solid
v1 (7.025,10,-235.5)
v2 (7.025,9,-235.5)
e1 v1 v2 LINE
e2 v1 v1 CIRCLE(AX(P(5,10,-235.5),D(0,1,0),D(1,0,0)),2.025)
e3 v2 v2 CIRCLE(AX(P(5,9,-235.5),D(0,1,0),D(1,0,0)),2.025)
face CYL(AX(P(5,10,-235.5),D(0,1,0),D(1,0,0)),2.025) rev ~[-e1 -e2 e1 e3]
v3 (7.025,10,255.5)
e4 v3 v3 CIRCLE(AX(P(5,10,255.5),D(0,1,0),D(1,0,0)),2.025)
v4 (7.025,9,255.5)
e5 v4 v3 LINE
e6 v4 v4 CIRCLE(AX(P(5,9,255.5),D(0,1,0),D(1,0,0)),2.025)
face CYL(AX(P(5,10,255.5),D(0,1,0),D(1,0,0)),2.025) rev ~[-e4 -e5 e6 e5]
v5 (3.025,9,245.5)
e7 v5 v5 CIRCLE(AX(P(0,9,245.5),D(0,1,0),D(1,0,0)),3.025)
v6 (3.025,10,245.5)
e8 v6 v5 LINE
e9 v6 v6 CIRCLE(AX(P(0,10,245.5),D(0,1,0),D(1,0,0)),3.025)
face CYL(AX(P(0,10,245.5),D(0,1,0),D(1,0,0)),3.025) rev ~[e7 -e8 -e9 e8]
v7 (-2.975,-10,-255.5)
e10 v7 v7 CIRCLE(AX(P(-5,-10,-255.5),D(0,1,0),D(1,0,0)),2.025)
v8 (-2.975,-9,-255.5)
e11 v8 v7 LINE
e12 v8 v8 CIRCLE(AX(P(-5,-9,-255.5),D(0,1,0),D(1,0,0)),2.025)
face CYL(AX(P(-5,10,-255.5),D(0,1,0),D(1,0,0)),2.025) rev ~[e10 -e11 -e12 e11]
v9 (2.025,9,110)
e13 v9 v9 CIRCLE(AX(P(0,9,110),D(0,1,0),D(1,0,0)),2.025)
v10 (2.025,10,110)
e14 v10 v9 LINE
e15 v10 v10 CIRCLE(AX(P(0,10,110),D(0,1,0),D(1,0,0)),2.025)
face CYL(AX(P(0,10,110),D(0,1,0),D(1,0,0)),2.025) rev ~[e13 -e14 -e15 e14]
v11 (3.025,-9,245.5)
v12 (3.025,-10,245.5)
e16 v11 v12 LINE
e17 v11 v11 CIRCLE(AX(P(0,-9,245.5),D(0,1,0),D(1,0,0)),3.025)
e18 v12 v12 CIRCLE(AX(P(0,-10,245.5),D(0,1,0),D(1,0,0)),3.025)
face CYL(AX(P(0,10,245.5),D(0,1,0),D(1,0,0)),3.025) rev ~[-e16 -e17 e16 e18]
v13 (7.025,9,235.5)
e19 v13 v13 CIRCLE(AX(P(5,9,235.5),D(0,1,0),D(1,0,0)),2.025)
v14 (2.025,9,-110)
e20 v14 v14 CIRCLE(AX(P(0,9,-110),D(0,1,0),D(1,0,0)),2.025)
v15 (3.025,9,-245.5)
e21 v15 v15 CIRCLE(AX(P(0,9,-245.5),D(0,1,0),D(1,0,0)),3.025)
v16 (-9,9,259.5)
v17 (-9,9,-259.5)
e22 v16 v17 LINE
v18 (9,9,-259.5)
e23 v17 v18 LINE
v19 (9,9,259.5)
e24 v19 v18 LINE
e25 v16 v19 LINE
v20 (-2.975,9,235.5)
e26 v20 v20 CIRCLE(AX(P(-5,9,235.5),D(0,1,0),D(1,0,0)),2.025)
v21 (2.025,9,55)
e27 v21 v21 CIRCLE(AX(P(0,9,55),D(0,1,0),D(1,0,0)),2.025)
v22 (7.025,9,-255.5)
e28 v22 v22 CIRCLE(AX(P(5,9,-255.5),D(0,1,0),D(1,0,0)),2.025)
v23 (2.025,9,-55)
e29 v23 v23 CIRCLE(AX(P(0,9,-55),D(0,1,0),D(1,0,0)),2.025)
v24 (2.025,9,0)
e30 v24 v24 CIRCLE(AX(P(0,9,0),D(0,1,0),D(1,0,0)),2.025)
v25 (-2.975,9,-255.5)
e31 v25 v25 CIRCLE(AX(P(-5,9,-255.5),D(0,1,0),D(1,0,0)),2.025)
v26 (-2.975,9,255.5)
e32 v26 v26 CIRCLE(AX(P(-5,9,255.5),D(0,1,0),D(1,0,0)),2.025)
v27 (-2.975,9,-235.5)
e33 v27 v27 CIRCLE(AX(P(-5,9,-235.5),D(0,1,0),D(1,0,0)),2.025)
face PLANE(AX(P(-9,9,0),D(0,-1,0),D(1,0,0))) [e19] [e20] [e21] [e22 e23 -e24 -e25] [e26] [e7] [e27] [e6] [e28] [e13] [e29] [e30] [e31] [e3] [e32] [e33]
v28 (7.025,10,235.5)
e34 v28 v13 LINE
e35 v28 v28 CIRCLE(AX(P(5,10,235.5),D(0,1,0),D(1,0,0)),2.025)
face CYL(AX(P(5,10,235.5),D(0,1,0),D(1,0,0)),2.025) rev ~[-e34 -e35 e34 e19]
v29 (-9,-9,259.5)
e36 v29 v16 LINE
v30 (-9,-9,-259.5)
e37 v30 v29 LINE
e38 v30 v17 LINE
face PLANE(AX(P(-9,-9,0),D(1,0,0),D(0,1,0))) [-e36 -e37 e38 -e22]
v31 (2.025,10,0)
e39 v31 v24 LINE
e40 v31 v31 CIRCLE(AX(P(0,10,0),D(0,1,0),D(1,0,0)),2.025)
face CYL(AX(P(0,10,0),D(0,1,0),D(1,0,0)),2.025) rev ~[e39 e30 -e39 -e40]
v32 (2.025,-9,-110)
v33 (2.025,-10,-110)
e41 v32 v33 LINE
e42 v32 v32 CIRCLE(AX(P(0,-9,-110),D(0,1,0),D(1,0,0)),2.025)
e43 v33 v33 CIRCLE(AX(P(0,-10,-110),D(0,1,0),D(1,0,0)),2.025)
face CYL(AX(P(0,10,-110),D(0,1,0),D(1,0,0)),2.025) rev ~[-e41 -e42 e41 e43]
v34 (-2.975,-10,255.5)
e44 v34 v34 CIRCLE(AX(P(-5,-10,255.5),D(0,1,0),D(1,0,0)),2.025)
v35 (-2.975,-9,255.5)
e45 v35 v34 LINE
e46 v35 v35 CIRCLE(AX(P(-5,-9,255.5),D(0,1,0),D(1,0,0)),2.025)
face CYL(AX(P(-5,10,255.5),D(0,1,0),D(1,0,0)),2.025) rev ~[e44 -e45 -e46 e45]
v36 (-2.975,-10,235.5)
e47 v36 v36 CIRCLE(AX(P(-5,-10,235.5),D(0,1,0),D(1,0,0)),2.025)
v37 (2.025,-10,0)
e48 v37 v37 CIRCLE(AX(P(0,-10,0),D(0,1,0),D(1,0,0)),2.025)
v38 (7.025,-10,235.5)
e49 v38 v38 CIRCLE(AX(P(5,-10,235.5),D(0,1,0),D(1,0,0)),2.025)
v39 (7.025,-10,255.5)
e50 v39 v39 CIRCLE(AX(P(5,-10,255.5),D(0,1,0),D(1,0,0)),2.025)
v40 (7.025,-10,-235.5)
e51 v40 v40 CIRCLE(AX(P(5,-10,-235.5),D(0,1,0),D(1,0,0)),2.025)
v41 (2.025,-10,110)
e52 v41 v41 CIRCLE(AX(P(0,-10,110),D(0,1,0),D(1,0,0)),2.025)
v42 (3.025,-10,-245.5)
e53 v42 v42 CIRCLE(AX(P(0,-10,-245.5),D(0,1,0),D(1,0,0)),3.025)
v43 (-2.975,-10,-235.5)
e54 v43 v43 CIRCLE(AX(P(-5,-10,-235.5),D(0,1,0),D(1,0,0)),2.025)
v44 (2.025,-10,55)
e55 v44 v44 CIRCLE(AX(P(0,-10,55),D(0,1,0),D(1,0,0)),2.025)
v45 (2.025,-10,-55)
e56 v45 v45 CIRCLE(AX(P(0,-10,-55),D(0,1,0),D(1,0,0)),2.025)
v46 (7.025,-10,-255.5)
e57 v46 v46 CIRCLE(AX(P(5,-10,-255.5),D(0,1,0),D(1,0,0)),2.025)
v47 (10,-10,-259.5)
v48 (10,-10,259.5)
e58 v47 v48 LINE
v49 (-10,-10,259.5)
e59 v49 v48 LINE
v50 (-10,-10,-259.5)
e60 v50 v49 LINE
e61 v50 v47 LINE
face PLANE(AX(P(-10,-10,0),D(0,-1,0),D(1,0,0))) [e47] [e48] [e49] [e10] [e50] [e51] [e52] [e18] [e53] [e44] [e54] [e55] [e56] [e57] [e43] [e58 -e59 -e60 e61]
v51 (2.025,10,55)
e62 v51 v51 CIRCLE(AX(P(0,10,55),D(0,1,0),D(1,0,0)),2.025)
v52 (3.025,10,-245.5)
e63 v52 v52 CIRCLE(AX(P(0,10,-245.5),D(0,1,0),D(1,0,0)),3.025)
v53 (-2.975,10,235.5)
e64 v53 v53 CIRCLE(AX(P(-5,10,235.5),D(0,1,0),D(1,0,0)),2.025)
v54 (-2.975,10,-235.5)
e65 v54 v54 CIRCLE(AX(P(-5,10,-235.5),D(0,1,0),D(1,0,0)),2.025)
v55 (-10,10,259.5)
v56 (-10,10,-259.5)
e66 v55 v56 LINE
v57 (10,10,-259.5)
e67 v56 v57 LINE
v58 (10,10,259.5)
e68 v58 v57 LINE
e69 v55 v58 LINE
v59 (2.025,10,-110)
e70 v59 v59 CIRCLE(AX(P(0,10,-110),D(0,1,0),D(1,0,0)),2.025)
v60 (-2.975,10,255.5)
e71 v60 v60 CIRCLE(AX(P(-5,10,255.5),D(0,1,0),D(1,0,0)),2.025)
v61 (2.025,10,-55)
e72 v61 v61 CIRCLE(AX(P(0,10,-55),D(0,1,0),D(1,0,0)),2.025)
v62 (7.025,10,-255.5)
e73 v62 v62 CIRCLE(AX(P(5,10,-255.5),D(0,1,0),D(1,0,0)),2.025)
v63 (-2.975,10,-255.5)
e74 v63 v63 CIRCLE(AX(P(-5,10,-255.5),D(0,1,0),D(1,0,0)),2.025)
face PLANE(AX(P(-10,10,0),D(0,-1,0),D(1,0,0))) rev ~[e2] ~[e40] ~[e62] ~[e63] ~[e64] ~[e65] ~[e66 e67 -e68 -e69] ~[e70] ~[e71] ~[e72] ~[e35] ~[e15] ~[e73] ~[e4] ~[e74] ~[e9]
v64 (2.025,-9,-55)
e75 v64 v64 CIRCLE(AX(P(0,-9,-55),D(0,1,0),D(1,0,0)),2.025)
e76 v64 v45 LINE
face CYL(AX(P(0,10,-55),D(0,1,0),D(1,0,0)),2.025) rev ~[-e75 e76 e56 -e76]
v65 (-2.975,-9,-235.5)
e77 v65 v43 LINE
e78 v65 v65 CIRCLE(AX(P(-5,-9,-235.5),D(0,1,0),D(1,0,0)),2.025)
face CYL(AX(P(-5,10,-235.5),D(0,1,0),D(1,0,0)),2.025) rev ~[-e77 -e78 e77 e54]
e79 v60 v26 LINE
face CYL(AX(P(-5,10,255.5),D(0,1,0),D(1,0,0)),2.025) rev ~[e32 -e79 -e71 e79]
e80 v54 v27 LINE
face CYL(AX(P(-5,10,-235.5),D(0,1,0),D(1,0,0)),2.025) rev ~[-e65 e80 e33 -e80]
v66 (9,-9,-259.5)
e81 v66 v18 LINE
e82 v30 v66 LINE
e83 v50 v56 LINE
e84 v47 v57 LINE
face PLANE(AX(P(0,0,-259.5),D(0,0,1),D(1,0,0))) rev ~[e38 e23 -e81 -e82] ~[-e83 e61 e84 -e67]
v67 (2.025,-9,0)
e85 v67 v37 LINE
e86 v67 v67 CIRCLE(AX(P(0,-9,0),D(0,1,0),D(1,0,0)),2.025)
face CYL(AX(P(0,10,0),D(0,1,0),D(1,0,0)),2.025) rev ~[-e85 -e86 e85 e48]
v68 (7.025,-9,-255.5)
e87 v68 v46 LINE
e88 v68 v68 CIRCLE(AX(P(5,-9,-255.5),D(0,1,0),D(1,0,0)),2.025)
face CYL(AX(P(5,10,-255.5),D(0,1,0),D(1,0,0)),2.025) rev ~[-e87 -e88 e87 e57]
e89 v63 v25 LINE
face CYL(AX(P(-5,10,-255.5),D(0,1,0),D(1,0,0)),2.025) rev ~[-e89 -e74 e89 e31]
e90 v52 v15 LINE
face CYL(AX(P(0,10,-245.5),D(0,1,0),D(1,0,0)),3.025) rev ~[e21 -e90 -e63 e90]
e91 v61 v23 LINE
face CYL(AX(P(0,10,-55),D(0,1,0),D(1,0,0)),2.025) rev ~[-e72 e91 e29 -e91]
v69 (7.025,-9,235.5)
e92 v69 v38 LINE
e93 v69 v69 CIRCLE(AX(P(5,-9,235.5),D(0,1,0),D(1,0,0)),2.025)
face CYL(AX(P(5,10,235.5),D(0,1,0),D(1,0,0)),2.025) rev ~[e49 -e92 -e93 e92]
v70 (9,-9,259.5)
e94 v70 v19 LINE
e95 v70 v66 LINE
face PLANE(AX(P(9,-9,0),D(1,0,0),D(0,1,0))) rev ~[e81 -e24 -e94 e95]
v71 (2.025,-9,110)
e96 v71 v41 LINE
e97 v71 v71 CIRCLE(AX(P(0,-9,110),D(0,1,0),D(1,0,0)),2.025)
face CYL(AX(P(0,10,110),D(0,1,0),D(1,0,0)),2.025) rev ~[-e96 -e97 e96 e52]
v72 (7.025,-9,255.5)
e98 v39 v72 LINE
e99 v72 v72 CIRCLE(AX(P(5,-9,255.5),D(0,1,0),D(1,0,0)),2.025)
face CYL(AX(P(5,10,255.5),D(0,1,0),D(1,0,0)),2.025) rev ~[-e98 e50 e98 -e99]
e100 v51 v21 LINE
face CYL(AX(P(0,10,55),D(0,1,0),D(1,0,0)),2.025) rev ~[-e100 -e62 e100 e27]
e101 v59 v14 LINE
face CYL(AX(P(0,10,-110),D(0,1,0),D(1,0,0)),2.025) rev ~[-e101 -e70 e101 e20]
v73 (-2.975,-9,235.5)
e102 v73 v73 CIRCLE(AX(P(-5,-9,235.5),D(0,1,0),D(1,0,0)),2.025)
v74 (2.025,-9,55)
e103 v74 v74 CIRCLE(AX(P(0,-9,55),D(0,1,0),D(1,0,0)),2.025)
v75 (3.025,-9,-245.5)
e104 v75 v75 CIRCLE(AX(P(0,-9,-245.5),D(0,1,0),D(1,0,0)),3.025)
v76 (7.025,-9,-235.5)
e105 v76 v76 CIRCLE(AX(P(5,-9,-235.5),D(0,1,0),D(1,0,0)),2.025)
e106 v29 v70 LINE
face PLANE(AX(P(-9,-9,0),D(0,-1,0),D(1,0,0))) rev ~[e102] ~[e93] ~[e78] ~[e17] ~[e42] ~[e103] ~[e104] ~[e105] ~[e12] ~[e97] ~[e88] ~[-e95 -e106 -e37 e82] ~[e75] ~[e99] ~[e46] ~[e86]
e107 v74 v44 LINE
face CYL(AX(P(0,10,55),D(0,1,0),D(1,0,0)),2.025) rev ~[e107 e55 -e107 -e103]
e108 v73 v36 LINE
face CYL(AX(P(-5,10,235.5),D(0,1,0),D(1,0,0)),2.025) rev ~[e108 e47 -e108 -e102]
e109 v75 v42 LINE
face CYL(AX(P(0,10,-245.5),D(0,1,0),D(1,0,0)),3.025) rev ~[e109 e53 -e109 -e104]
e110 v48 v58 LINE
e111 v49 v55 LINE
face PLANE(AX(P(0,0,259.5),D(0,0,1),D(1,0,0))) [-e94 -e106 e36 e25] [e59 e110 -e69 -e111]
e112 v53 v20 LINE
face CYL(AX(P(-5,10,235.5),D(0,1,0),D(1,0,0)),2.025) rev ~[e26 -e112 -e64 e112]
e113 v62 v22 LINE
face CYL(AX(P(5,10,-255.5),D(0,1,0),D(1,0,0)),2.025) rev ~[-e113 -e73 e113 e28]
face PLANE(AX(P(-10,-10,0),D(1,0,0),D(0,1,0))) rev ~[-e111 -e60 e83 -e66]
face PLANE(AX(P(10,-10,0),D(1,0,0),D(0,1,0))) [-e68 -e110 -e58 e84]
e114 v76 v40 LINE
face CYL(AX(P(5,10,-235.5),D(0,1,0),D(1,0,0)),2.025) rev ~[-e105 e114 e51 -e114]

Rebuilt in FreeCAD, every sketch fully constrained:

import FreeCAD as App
import Part
import Sketcher

V = App.Vector
Q = App.Units.Quantity

doc = App.newDocument("Part")
body = doc.addObject("PartDesign::Body", "Body")

sketch1 = body.newObject("Sketcher::SketchObject", "Sketch")
sketch1.AttachmentSupport = (doc.getObject("XY_Plane"), [""])
sketch1.MapMode = "FlatFace"
sketch1.addGeometry([
    Part.LineSegment(V(-10, 10, 0), V(-10, -10, 0)),
    Part.LineSegment(V(-10, -10, 0), V(10, -10, 0)),
    Part.LineSegment(V(10, -10, 0), V(10, 10, 0)),
    Part.LineSegment(V(10, 10, 0), V(-10, 10, 0)),
    Part.LineSegment(V(9, -9, 0), V(-9, -9, 0)),
    Part.LineSegment(V(-9, -9, 0), V(-9, 9, 0)),
    Part.LineSegment(V(-9, 9, 0), V(9, 9, 0)),
    Part.LineSegment(V(9, 9, 0), V(9, -9, 0)),
], False)
sketch1.addConstraint([
    Sketcher.Constraint("Coincident", 0, 2, 1, 1),
    Sketcher.Constraint("Coincident", 1, 2, 2, 1),
    Sketcher.Constraint("Coincident", 2, 2, 3, 1),
    Sketcher.Constraint("Coincident", 3, 2, 0, 1),
    Sketcher.Constraint("Coincident", 4, 2, 5, 1),
    Sketcher.Constraint("Coincident", 5, 2, 6, 1),
    Sketcher.Constraint("Coincident", 6, 2, 7, 1),
    Sketcher.Constraint("Coincident", 7, 2, 4, 1),
    Sketcher.Constraint("Vertical", 0),
    Sketcher.Constraint("Horizontal", 1),
    Sketcher.Constraint("Vertical", 2),
    Sketcher.Constraint("Horizontal", 3),
    Sketcher.Constraint("Horizontal", 4),
    Sketcher.Constraint("Vertical", 5),
    Sketcher.Constraint("Horizontal", 6),
    Sketcher.Constraint("Vertical", 7),
    Sketcher.Constraint("Symmetric", 0, 2, 2, 2, -1, 1),
    Sketcher.Constraint("Symmetric", 4, 2, 6, 2, -1, 1),
    Sketcher.Constraint("Equal", 3, 0),
    Sketcher.Constraint("Equal", 6, 5),
    Sketcher.Constraint("DistanceX", 1, 1, 1, 2, Q("20 mm")),
    Sketcher.Constraint("DistanceX", 4, 2, 4, 1, Q("18 mm")),
])
pad1 = body.newObject("PartDesign::Pad", "Pad")
pad1.Profile = sketch1
pad1.Length = 519
pad1.Midplane = True

sketch2 = body.newObject("Sketcher::SketchObject", "Sketch001")
sketch2.AttachmentSupport = (doc.getObject("XZ_Plane"), [""])
sketch2.MapMode = "FlatFace"
sketch2.AttachmentOffset = App.Placement(V(0, 0, -10), App.Rotation())
sketch2.addGeometry([
    Part.Circle(V(-5, -255.5, 0), V(0, 0, 1), 2.025),
    Part.Circle(V(5, -255.5, 0), V(0, 0, 1), 2.025),
    Part.Circle(V(-5, -235.5, 0), V(0, 0, 1), 2.025),
    Part.Circle(V(5, -235.5, 0), V(0, 0, 1), 2.025),
    Part.Circle(V(0, -245.5, 0), V(0, 0, 1), 3.025),
    Part.Circle(V(5, 235.5, 0), V(0, 0, 1), 2.025),
    Part.Circle(V(-5, 235.5, 0), V(0, 0, 1), 2.025),
    Part.Circle(V(-5, 255.5, 0), V(0, 0, 1), 2.025),
    Part.Circle(V(0, 245.5, 0), V(0, 0, 1), 3.025),
    Part.Circle(V(5, 255.5, 0), V(0, 0, 1), 2.025),
], False)
sketch2.addConstraint([
    Sketcher.Constraint("Equal", 0, 1),
    Sketcher.Constraint("Equal", 1, 2),
    Sketcher.Constraint("Equal", 2, 3),
    Sketcher.Constraint("Equal", 3, 5),
    Sketcher.Constraint("Equal", 5, 6),
    Sketcher.Constraint("Equal", 6, 7),
    Sketcher.Constraint("Equal", 4, 8),
    Sketcher.Constraint("Equal", 7, 9),
    Sketcher.Constraint("Symmetric", 2, 3, 5, 3, -1, 1),
    Sketcher.Constraint("Symmetric", 3, 3, 6, 3, -1, 1),
    Sketcher.Constraint("Symmetric", 1, 3, 7, 3, -1, 1),
    Sketcher.Constraint("Symmetric", 4, 3, 8, 3, -1, 1),
    Sketcher.Constraint("Symmetric", 0, 3, 9, 3, -1, 1),
    Sketcher.Constraint("Symmetric", 0, 3, 1, 3, -2),
    Sketcher.Constraint("Symmetric", 2, 3, 3, 3, -2),
    Sketcher.Constraint("PointOnObject", 4, 3, -2),
    Sketcher.Constraint("Vertical", 0, 3, 2, 3),
    Sketcher.Constraint("Diameter", 0, Q("4.05 mm")),
    Sketcher.Constraint("Diameter", 4, Q("6.05 mm")),
    Sketcher.Constraint("DistanceX", 0, 3, -1, 1, Q("5 mm")),
    Sketcher.Constraint("DistanceY", 0, 3, 2, 3, Q("20 mm")),
    Sketcher.Constraint("DistanceY", 0, 3, 4, 3, Q("10 mm")),
    Sketcher.Constraint("DistanceY", 3, 3, 5, 3, Q("471 mm")),
])
pocket1 = body.newObject("PartDesign::Pocket", "Pocket")
pocket1.Profile = sketch2
pocket1.Length = 40
pocket1.Midplane = True

sketch3 = body.newObject("Sketcher::SketchObject", "Sketch002")
sketch3.AttachmentSupport = (doc.getObject("XZ_Plane"), [""])
sketch3.MapMode = "FlatFace"
sketch3.AttachmentOffset = App.Placement(V(0, 0, -10), App.Rotation())
sketch3.addGeometry([
    Part.Circle(V(0, -110, 0), V(0, 0, 1), 2.025),
    Part.Circle(V(0, -55, 0), V(0, 0, 1), 2.025),
    Part.Circle(V(0, 0, 0), V(0, 0, 1), 2.025),
    Part.Circle(V(0, 55, 0), V(0, 0, 1), 2.025),
    Part.Circle(V(0, 110, 0), V(0, 0, 1), 2.025),
], False)
sketch3.addConstraint([
    Sketcher.Constraint("Coincident", 2, 3, -1, 1),
    Sketcher.Constraint("Equal", 0, 1),
    Sketcher.Constraint("Equal", 1, 2),
    Sketcher.Constraint("Equal", 2, 3),
    Sketcher.Constraint("Equal", 3, 4),
    Sketcher.Constraint("Symmetric", 1, 3, 3, 3, -1, 1),
    Sketcher.Constraint("Symmetric", 0, 3, 4, 3, -1, 1),
    Sketcher.Constraint("PointOnObject", 0, 3, -2),
    Sketcher.Constraint("PointOnObject", 1, 3, -2),
    Sketcher.Constraint("Diameter", 0, Q("4.05 mm")),
    Sketcher.Constraint("DistanceY", 0, 3, -1, 1, Q("110 mm")),
    Sketcher.Constraint("DistanceY", 1, 3, -1, 1, Q("55 mm")),
])
pocket2 = body.newObject("PartDesign::Pocket", "Pocket001")
pocket2.Profile = sketch3
pocket2.Length = 20
pocket2.Reversed = True

doc.recompute()
